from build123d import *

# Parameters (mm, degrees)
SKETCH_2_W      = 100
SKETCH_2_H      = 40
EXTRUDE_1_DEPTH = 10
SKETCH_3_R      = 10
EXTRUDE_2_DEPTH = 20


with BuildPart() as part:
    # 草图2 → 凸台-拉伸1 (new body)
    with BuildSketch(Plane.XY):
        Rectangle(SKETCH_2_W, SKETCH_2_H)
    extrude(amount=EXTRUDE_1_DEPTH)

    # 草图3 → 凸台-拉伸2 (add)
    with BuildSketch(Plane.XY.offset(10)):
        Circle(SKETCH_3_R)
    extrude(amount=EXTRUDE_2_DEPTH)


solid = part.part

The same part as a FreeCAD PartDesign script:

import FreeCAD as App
import Part
import Sketcher
from FreeCAD import Vector
Q = App.Units.Quantity


def add_polygon(sketch, points):
    """Adds a closed chain of lines whose ends are joined by coincident constraints."""
    first, n = sketch.GeometryCount, len(points)
    for a, b in zip(points, points[1:] + points[:1]):
        sketch.addGeometry(Part.LineSegment(App.Vector(*a, 0), App.Vector(*b, 0)), False)
    for i in range(n):
        sketch.addConstraint(Sketcher.Constraint("Coincident", first + i, 2, first + (i + 1) % n, 1))

doc = App.newDocument("Part")
body = doc.addObject("PartDesign::Body", "Body")

# Sketch on XY plane
sketch1 = body.newObject("Sketcher::SketchObject", "Sketch")
sketch1.AttachmentSupport = (doc.getObject("XY_Plane"), [""])
sketch1.MapMode = "FlatFace"
add_polygon(sketch1, [(-50, 20), (-50, -20), (50, -20), (50, 20)])  # lines 0-3
sketch1.addConstraint([
    Sketcher.Constraint("Vertical", 0),
    Sketcher.Constraint("Horizontal", 1),
    Sketcher.Constraint("Vertical", 2),
    Sketcher.Constraint("Horizontal", 3),
    Sketcher.Constraint("Symmetric", 0, 2, 2, 2, -1, 1),
    Sketcher.Constraint("DistanceX", 1, 1, 1, 2, Q("100 mm")),
    Sketcher.Constraint("DistanceY", 0, 2, 0, 1, Q("40 mm")),
])
pad1 = body.newObject("PartDesign::Pad", "Pad")
pad1.Profile = sketch1
pad1.Length = 10

# Sketch on XY plane
sketch2 = body.newObject("Sketcher::SketchObject", "Sketch001")
sketch2.AttachmentSupport = (doc.getObject("XY_Plane"), [""])
sketch2.MapMode = "FlatFace"
sketch2.AttachmentOffset = App.Placement(Vector(0, 0, 10), App.Rotation())
sketch2.addGeometry(Part.Circle(Vector(0, 0, 0), Vector(0, 0, 1), 10), False)
sketch2.addConstraint([
    Sketcher.Constraint("Coincident", 0, 3, -1, 1),
    Sketcher.Constraint("Diameter", 0, Q("20 mm")),
])
pad2 = body.newObject("PartDesign::Pad", "Pad001")
pad2.Profile = sketch2
pad2.Length = 20

doc.recompute()
